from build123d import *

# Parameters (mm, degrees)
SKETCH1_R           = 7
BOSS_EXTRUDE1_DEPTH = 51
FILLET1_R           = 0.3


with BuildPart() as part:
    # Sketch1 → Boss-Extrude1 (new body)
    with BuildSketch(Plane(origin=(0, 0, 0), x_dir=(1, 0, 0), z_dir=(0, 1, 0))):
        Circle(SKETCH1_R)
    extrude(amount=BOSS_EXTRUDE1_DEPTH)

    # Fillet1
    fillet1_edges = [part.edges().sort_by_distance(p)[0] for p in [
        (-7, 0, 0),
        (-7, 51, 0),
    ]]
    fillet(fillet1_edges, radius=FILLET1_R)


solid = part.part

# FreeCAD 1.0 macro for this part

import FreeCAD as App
import Part
import Sketcher
Q = App.Units.Quantity


def edges_at(feature, points):
    """Names of the edges that pass closest to the given points."""
    edges = feature.Shape.Edges
    near = lambda p: min(range(len(edges)), key=lambda i: edges[i].distToShape(Part.Vertex(*p))[0])
    return sorted({f"Edge{near(p) + 1}" for p in points})

doc = App.newDocument("Part")
body = doc.addObject("PartDesign::Body", "Body")

# Sketch on XZ plane
sketch1 = body.newObject("Sketcher::SketchObject", "Sketch")
sketch1.AttachmentSupport = (doc.getObject("XZ_Plane"), [""])
sketch1.MapMode = "FlatFace"
sketch1.addGeometry(Part.Circle(App.Vector(0, 0, 0), App.Vector(0, 0, 1), 7), False)
sketch1.addConstraint([
    Sketcher.Constraint("Coincident", 0, 3, -1, 1),
    Sketcher.Constraint("Diameter", 0, Q("14 mm")),
])
pad1 = body.newObject("PartDesign::Pad", "Pad")
pad1.Profile = sketch1
pad1.Length = 51
pad1.Reversed = True
doc.recompute()

fillet = body.newObject("PartDesign::Fillet", "Fillet")
fillet.Base = (pad1, edges_at(pad1, [(-7, 0, 0), (-7, 51, 0)]))
fillet.Radius = 0.3

doc.recompute()
